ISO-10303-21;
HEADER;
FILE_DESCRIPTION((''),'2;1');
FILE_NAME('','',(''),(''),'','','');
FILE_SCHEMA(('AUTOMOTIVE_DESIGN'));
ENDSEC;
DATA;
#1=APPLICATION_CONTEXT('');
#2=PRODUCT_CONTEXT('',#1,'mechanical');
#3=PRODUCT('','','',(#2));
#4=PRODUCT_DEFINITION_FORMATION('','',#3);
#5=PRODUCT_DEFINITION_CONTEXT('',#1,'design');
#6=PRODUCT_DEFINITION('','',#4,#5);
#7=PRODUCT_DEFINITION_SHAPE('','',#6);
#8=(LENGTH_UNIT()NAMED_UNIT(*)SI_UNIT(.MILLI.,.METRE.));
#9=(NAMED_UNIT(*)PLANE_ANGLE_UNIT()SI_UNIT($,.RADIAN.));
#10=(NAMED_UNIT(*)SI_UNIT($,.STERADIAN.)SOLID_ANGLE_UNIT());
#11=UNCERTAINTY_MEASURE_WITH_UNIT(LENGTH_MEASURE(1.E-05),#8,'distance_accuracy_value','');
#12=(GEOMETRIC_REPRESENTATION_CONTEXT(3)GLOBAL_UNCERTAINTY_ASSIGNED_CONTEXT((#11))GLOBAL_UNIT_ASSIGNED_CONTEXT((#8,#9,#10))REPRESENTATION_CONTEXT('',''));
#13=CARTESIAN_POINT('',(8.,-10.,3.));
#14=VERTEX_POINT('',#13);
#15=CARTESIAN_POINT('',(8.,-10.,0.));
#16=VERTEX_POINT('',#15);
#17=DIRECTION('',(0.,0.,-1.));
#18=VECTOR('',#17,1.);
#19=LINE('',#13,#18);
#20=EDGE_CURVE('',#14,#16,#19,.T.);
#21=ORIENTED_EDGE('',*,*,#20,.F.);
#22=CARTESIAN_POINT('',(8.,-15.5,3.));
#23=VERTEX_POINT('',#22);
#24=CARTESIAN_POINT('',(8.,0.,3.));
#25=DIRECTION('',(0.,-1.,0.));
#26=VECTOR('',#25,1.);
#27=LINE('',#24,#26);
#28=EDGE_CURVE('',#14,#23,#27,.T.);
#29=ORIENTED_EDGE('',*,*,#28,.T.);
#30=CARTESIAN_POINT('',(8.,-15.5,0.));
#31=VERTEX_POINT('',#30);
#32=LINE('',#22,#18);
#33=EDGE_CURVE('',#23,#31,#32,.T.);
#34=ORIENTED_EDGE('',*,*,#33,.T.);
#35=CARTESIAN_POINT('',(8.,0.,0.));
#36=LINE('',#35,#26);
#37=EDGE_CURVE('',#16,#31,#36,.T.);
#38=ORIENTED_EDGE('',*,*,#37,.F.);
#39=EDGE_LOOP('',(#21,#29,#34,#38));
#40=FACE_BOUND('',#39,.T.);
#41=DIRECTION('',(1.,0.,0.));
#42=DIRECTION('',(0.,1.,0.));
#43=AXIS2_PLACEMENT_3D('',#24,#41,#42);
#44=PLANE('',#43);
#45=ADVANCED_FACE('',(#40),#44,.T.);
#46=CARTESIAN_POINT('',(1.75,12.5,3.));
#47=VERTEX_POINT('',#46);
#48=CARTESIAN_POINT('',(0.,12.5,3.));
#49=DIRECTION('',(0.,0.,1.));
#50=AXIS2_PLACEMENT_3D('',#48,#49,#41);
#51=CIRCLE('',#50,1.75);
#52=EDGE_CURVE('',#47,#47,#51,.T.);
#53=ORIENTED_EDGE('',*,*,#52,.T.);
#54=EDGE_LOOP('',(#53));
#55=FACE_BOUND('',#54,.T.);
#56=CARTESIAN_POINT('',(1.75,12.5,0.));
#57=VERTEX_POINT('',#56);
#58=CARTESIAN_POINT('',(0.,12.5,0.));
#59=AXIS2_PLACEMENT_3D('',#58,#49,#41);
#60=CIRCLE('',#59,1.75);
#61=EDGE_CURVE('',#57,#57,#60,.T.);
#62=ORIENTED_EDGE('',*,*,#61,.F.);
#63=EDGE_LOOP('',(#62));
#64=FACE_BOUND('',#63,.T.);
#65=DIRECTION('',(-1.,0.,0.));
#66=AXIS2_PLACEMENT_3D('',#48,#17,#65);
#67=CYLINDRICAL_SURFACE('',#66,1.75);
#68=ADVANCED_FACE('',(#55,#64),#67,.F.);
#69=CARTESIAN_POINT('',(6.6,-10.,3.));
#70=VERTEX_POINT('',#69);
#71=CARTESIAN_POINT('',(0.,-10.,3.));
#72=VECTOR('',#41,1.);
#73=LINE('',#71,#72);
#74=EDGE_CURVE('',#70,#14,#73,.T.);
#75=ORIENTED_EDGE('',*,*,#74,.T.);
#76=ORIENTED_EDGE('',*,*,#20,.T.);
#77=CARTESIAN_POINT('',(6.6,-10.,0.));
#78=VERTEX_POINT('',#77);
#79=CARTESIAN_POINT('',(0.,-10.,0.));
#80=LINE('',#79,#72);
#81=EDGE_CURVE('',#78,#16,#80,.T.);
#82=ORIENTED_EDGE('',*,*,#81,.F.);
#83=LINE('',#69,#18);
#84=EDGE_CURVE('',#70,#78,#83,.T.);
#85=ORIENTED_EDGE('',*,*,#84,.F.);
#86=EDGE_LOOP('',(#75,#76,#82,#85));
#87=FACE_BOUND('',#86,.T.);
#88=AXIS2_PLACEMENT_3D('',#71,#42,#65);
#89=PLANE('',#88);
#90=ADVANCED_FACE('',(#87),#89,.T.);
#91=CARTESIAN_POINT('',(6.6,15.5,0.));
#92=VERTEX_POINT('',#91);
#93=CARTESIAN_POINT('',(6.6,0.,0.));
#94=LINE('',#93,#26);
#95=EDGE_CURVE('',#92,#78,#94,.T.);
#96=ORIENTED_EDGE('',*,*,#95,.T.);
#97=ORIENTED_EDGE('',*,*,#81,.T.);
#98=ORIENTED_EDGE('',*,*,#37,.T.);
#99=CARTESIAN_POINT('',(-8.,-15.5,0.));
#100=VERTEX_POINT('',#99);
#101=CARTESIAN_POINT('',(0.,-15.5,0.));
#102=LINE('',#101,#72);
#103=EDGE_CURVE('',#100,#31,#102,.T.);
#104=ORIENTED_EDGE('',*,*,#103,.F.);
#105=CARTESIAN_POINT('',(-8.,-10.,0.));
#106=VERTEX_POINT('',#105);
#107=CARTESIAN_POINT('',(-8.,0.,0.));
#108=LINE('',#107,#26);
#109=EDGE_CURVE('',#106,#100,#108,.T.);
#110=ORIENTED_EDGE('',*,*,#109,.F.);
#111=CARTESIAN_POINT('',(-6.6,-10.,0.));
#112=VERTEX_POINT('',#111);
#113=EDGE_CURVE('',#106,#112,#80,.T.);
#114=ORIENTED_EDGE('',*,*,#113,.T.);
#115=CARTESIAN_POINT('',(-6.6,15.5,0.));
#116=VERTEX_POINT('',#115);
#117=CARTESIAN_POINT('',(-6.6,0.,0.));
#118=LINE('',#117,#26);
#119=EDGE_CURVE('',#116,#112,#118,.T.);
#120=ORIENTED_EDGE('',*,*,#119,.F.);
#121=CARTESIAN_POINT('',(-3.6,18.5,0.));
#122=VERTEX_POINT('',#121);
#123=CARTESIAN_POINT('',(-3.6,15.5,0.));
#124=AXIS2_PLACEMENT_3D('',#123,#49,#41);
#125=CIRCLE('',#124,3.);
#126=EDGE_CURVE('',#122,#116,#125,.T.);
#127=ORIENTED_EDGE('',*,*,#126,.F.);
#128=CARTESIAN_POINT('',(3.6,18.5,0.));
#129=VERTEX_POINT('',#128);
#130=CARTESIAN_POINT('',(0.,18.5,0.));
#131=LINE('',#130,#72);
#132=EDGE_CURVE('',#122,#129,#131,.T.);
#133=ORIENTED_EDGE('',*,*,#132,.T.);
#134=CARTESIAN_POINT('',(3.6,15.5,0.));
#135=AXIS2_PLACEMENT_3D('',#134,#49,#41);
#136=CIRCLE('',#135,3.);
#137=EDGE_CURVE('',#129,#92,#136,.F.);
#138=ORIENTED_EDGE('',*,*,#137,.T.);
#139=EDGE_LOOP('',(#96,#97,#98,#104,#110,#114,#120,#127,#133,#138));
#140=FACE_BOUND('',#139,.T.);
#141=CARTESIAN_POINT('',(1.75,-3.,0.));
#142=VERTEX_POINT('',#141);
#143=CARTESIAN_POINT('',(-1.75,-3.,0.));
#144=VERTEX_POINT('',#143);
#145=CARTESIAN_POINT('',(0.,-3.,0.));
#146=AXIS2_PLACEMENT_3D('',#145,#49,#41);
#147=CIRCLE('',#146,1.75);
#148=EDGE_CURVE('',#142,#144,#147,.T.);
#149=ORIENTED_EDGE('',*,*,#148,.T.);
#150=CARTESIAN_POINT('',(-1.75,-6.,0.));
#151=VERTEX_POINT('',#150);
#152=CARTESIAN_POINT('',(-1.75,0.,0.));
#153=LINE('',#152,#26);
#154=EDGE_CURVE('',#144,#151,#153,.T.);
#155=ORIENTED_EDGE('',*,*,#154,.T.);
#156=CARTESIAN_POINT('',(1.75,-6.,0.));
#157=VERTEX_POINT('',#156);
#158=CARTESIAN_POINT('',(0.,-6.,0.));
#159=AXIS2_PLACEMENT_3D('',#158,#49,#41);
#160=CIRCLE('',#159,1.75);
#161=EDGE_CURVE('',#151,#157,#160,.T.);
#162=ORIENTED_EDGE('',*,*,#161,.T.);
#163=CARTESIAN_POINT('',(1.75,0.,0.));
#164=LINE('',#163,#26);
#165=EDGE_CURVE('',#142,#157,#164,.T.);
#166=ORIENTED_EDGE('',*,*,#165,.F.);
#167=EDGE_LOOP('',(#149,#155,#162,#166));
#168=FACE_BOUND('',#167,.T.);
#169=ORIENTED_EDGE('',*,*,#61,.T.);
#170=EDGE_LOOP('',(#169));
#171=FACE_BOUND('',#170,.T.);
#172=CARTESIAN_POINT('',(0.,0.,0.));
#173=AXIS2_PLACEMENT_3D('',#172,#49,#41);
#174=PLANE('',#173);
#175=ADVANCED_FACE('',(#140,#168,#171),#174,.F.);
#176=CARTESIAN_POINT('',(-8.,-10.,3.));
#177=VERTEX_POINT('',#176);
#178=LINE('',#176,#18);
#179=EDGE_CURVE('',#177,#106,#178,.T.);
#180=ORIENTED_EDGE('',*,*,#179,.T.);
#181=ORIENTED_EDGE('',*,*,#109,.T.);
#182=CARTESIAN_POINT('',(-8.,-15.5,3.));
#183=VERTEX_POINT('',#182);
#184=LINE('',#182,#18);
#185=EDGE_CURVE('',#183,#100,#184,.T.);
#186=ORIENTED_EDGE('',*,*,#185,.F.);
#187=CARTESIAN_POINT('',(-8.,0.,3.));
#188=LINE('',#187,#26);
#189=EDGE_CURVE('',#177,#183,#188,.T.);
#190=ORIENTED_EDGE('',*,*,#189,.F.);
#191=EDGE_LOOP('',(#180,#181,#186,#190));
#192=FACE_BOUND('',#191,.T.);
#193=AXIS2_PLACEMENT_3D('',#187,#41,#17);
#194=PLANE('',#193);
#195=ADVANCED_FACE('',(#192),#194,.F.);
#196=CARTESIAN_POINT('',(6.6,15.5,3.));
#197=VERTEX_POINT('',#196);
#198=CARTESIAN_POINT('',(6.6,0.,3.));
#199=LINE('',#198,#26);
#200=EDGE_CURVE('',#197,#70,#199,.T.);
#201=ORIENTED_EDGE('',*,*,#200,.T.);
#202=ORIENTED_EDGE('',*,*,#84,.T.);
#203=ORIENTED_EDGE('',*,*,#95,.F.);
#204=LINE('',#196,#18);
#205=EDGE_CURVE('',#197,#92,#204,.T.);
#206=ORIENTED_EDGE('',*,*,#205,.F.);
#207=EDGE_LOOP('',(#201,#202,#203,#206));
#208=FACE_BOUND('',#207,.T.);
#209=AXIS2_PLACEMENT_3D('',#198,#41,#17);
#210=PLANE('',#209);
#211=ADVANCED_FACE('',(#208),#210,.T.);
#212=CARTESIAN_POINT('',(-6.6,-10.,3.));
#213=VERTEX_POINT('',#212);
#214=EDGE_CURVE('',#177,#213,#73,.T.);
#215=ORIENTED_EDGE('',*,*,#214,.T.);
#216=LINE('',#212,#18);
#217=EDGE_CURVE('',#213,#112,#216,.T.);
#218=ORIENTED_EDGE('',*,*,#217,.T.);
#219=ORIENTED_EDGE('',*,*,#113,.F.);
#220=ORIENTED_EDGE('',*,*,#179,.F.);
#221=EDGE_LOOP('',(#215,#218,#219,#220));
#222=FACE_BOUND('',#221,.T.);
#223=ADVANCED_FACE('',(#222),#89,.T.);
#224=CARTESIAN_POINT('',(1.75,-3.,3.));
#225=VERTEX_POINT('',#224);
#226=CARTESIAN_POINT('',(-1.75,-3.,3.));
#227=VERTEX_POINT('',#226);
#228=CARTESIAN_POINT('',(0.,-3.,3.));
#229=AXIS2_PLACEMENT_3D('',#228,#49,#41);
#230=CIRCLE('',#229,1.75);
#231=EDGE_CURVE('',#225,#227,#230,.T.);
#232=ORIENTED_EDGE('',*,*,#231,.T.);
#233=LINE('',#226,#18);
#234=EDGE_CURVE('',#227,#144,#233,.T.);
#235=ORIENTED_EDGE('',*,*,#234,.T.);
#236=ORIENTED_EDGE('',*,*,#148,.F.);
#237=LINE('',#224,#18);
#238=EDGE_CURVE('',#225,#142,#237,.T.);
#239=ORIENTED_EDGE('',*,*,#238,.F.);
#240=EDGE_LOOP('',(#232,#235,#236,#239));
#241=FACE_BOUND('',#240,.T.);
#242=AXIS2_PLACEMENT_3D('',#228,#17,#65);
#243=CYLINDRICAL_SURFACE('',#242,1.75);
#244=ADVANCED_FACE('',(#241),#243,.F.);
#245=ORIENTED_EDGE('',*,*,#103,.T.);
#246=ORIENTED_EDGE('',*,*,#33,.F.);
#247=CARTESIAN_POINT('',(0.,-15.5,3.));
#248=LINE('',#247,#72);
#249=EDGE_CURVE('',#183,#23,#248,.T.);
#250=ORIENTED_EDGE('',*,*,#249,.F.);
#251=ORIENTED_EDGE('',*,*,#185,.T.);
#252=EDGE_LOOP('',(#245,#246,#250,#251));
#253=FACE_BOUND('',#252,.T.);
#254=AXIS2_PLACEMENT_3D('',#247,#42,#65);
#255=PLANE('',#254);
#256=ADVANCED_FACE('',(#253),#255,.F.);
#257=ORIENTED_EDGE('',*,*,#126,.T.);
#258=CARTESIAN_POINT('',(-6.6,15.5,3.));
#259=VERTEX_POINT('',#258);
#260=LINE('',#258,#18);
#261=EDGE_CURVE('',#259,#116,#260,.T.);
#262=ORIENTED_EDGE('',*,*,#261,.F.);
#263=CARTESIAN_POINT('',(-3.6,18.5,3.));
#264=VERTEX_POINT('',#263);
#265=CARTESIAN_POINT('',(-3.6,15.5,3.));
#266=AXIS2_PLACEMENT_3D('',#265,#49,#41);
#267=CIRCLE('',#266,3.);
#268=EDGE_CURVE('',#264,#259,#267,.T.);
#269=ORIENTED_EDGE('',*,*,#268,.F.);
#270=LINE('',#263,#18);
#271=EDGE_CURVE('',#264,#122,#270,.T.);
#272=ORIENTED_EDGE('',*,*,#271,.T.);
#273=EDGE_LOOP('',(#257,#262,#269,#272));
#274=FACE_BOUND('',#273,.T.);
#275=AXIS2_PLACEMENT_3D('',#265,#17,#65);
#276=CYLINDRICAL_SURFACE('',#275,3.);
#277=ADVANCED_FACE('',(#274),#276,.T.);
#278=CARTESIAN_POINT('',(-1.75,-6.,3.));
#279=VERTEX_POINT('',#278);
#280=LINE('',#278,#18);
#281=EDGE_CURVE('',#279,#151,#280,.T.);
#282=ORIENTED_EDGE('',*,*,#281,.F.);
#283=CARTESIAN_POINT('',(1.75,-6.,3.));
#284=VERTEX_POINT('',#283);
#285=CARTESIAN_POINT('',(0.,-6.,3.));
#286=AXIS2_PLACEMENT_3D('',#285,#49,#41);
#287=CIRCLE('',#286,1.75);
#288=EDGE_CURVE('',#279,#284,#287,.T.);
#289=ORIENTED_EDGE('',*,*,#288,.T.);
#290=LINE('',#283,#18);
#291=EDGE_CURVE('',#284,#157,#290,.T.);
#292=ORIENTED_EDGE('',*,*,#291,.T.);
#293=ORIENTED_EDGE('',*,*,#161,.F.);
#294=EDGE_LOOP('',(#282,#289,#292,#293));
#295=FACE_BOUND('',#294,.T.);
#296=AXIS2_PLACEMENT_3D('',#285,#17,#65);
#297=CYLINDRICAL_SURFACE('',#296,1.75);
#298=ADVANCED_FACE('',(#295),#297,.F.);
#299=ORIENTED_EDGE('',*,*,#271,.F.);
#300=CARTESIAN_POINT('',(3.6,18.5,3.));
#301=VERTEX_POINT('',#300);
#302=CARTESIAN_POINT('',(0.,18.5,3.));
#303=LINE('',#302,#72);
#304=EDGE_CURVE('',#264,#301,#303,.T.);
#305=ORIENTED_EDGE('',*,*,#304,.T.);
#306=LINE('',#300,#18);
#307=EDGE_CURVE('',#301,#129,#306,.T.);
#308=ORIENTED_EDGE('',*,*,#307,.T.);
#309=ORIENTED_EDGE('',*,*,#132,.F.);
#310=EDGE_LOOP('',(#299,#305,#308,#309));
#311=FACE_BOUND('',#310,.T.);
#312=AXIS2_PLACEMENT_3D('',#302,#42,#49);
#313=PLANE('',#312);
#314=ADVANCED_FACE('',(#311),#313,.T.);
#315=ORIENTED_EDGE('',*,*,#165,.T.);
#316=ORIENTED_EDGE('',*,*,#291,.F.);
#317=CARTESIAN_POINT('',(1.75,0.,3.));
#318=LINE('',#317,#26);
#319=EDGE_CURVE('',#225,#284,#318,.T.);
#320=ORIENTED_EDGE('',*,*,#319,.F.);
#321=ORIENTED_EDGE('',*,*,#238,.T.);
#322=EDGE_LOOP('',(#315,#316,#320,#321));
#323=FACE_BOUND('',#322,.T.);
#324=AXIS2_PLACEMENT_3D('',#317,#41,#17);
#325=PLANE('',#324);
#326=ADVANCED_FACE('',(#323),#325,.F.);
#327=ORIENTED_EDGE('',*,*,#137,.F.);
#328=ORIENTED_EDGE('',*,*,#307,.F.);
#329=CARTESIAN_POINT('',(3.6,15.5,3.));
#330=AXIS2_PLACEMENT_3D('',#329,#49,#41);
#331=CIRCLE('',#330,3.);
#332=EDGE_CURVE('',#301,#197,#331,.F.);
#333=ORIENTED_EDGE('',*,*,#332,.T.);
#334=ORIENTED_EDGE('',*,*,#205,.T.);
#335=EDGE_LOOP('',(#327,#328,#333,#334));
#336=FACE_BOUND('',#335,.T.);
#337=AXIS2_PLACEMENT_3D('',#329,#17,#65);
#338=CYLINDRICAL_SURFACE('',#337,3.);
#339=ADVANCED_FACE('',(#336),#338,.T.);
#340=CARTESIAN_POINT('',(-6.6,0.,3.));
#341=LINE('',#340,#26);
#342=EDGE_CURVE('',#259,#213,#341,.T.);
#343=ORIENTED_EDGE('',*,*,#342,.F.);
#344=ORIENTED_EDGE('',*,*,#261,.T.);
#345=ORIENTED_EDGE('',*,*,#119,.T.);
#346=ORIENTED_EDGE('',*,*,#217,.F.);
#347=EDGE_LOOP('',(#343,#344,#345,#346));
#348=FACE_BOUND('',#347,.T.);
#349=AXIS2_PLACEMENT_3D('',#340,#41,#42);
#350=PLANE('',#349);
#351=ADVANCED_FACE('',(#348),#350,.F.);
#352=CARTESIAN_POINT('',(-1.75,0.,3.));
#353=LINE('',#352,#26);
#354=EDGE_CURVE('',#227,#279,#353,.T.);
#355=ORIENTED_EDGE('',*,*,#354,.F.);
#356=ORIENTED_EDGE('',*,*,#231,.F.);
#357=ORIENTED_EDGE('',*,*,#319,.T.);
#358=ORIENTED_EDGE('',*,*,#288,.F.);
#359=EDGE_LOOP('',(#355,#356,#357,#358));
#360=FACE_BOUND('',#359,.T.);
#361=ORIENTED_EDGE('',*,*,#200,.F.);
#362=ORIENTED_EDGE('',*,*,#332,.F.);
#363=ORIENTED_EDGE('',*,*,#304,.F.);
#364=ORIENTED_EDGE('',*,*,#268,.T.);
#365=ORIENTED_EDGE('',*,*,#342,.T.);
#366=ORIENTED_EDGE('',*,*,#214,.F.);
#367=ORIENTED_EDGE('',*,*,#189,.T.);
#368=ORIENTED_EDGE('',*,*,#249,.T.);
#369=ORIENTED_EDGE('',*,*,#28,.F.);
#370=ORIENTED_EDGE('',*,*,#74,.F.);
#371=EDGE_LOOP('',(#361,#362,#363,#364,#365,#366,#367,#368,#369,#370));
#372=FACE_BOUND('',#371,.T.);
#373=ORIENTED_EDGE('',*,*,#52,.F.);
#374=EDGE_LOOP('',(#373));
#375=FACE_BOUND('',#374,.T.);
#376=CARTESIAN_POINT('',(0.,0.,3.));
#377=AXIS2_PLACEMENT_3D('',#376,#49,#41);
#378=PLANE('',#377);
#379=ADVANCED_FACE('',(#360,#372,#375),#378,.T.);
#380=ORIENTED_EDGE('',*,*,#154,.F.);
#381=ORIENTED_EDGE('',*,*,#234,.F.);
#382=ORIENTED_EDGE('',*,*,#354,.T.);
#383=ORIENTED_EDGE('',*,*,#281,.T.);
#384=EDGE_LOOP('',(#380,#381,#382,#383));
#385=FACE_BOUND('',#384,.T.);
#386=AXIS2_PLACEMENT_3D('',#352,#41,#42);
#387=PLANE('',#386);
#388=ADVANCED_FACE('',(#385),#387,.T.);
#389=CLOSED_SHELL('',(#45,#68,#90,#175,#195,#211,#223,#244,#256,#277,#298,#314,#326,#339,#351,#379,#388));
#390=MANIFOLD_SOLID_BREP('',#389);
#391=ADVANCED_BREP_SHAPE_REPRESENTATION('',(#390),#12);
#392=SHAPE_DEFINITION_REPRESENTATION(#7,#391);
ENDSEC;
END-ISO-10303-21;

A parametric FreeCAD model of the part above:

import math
import FreeCAD as App
import Part
import Sketcher
Q = App.Units.Quantity

doc = App.newDocument("Part")
params = doc.addObject("Spreadsheet::Sheet", "Params")
for row, (alias, value) in enumerate([
    ("sketch1_radius", "3 mm"),
    ("sketch1_diameter", "3.5 mm"),
    ("sketch1_width", "16 mm"),
    ("sketch1_height", "3 mm"),
    ("sketch1_width2", "1.4 mm"),
    ("pad1_length", "3 mm"),
], start=1):
    params.set(f"A{row}", alias)
    params.set(f"B{row}", "=" + value)
    params.setAlias(f"B{row}", alias)

body = doc.addObject("PartDesign::Body", "Body")

# Sketch on XY plane
sketch1 = body.newObject("Sketcher::SketchObject", "Sketch")
sketch1.AttachmentSupport = (doc.getObject("XY_Plane"), [""])
sketch1.MapMode = "FlatFace"
sketch1.addGeometry(Part.ArcOfCircle(Part.Circle(App.Vector(-3.6, 15.5, 0), App.Vector(0, 0, 1), 3), math.radians(90), math.radians(180)), False)
sketch1.addGeometry(Part.LineSegment(App.Vector(-6.6, 15.5, 0), App.Vector(-6.6, -10, 0)), False)
sketch1.addGeometry(Part.LineSegment(App.Vector(-6.6, -10, 0), App.Vector(-8, -10, 0)), False)
sketch1.addGeometry(Part.LineSegment(App.Vector(-8, -10, 0), App.Vector(-8, -15.5, 0)), False)
sketch1.addGeometry(Part.LineSegment(App.Vector(-8, -15.5, 0), App.Vector(8, -15.5, 0)), False)
sketch1.addGeometry(Part.LineSegment(App.Vector(8, -15.5, 0), App.Vector(8, -10, 0)), False)
sketch1.addGeometry(Part.LineSegment(App.Vector(8, -10, 0), App.Vector(6.6, -10, 0)), False)
sketch1.addGeometry(Part.LineSegment(App.Vector(6.6, -10, 0), App.Vector(6.6, 15.5, 0)), False)
sketch1.addGeometry(Part.ArcOfCircle(Part.Circle(App.Vector(3.6, 15.5, 0), App.Vector(0, 0, 1), 3), math.radians(0), math.radians(90)), False)
sketch1.addGeometry(Part.LineSegment(App.Vector(3.6, 18.5, 0), App.Vector(-3.6, 18.5, 0)), False)
sketch1.addGeometry(Part.LineSegment(App.Vector(1.8, -3, 0), App.Vector(1.8, -6, 0)), False)
sketch1.addGeometry(Part.ArcOfCircle(Part.Circle(App.Vector(0, -6, 0), App.Vector(0, 0, 1), 1.8), math.radians(180), math.radians(360)), False)
sketch1.addGeometry(Part.LineSegment(App.Vector(-1.8, -6, 0), App.Vector(-1.8, -3, 0)), False)
sketch1.addGeometry(Part.ArcOfCircle(Part.Circle(App.Vector(0, -3, 0), App.Vector(0, 0, 1), 1.8), math.radians(0), math.radians(180)), False)
sketch1.addGeometry(Part.Circle(App.Vector(0, 12.5, 0), App.Vector(0, 0, 1), 1.8), False)
sketch1.addConstraint(Sketcher.Constraint("Tangent", 0, 2, 1, 1))
sketch1.addConstraint(Sketcher.Constraint("Coincident", 1, 2, 2, 1))
sketch1.addConstraint(Sketcher.Constraint("Coincident", 2, 2, 3, 1))
sketch1.addConstraint(Sketcher.Constraint("Coincident", 3, 2, 4, 1))
sketch1.addConstraint(Sketcher.Constraint("Coincident", 4, 2, 5, 1))
sketch1.addConstraint(Sketcher.Constraint("Coincident", 5, 2, 6, 1))
sketch1.addConstraint(Sketcher.Constraint("Coincident", 6, 2, 7, 1))
sketch1.addConstraint(Sketcher.Constraint("Tangent", 7, 2, 8, 1))
sketch1.addConstraint(Sketcher.Constraint("Tangent", 8, 2, 9, 1))
sketch1.addConstraint(Sketcher.Constraint("Tangent", 9, 2, 0, 1))
sketch1.addConstraint(Sketcher.Constraint("Tangent", 10, 2, 11, 2))
sketch1.addConstraint(Sketcher.Constraint("Tangent", 11, 1, 12, 1))
sketch1.addConstraint(Sketcher.Constraint("Tangent", 12, 2, 13, 2))
sketch1.addConstraint(Sketcher.Constraint("Tangent", 13, 1, 10, 1))
sketch1.addConstraint(Sketcher.Constraint("Vertical", 1))
sketch1.addConstraint(Sketcher.Constraint("Horizontal", 2))
sketch1.addConstraint(Sketcher.Constraint("Vertical", 3))
sketch1.addConstraint(Sketcher.Constraint("Horizontal", 4))
sketch1.addConstraint(Sketcher.Constraint("Vertical", 5))
sketch1.addConstraint(Sketcher.Constraint("Horizontal", 6))
sketch1.addConstraint(Sketcher.Constraint("Vertical", 7))
sketch1.addConstraint(Sketcher.Constraint("Horizontal", 9))
sketch1.addConstraint(Sketcher.Constraint("Vertical", 10))
sketch1.addConstraint(Sketcher.Constraint("Vertical", 12))
sketch1.addConstraint(Sketcher.Constraint("Equal", 0, 8))
sketch1.addConstraint(Sketcher.Constraint("Equal", 13, 14))
sketch1.addConstraint(Sketcher.Constraint("Symmetric", 2, 2, 5, 2, -2))
sketch1.addConstraint(Sketcher.Constraint("PointOnObject", 11, 3, -2))
sketch1.addConstraint(Sketcher.Constraint("PointOnObject", 14, 3, -2))
sketch1.addConstraint(Sketcher.Constraint("Equal", 2, 6))
sketch1.addConstraint(Sketcher.Constraint("Radius", 0, Q("3 mm")))
sketch1.addConstraint(Sketcher.Constraint("Diameter", 14, Q("3.5 mm")))
sketch1.addConstraint(Sketcher.Constraint("DistanceX", 4, 1, 4, 2, Q("16 mm")))
sketch1.addConstraint(Sketcher.Constraint("DistanceY", 10, 2, 10, 1, Q("3 mm")))
sketch1.addConstraint(Sketcher.Constraint("DistanceX", 2, 2, 2, 1, Q("1.4 mm")))
sketch1.addConstraint(Sketcher.Constraint("DistanceY", 1, 2, 1, 1, Q("25.5 mm")))
sketch1.addConstraint(Sketcher.Constraint("DistanceY", 3, 2, 3, 1, Q("5.5 mm")))
sketch1.addConstraint(Sketcher.Constraint("DistanceY", 11, 3, -1, 1, Q("6 mm")))
sketch1.addConstraint(Sketcher.Constraint("DistanceY", 1, 2, -1, 1, Q("10 mm")))
sketch1.addConstraint(Sketcher.Constraint("DistanceY", 14, 3, 0, 3, Q("3 mm")))
sketch1.setExpression("Constraints[30]", "Params.sketch1_radius")
sketch1.setExpression("Constraints[31]", "Params.sketch1_diameter")
sketch1.setExpression("Constraints[32]", "Params.sketch1_width")
sketch1.setExpression("Constraints[33]", "Params.sketch1_height")
sketch1.setExpression("Constraints[34]", "Params.sketch1_width2")
pad1 = body.newObject("PartDesign::Pad", "Pad")
pad1.Profile = sketch1
pad1.setExpression("Length", "Params.pad1_length")

doc.recompute()
